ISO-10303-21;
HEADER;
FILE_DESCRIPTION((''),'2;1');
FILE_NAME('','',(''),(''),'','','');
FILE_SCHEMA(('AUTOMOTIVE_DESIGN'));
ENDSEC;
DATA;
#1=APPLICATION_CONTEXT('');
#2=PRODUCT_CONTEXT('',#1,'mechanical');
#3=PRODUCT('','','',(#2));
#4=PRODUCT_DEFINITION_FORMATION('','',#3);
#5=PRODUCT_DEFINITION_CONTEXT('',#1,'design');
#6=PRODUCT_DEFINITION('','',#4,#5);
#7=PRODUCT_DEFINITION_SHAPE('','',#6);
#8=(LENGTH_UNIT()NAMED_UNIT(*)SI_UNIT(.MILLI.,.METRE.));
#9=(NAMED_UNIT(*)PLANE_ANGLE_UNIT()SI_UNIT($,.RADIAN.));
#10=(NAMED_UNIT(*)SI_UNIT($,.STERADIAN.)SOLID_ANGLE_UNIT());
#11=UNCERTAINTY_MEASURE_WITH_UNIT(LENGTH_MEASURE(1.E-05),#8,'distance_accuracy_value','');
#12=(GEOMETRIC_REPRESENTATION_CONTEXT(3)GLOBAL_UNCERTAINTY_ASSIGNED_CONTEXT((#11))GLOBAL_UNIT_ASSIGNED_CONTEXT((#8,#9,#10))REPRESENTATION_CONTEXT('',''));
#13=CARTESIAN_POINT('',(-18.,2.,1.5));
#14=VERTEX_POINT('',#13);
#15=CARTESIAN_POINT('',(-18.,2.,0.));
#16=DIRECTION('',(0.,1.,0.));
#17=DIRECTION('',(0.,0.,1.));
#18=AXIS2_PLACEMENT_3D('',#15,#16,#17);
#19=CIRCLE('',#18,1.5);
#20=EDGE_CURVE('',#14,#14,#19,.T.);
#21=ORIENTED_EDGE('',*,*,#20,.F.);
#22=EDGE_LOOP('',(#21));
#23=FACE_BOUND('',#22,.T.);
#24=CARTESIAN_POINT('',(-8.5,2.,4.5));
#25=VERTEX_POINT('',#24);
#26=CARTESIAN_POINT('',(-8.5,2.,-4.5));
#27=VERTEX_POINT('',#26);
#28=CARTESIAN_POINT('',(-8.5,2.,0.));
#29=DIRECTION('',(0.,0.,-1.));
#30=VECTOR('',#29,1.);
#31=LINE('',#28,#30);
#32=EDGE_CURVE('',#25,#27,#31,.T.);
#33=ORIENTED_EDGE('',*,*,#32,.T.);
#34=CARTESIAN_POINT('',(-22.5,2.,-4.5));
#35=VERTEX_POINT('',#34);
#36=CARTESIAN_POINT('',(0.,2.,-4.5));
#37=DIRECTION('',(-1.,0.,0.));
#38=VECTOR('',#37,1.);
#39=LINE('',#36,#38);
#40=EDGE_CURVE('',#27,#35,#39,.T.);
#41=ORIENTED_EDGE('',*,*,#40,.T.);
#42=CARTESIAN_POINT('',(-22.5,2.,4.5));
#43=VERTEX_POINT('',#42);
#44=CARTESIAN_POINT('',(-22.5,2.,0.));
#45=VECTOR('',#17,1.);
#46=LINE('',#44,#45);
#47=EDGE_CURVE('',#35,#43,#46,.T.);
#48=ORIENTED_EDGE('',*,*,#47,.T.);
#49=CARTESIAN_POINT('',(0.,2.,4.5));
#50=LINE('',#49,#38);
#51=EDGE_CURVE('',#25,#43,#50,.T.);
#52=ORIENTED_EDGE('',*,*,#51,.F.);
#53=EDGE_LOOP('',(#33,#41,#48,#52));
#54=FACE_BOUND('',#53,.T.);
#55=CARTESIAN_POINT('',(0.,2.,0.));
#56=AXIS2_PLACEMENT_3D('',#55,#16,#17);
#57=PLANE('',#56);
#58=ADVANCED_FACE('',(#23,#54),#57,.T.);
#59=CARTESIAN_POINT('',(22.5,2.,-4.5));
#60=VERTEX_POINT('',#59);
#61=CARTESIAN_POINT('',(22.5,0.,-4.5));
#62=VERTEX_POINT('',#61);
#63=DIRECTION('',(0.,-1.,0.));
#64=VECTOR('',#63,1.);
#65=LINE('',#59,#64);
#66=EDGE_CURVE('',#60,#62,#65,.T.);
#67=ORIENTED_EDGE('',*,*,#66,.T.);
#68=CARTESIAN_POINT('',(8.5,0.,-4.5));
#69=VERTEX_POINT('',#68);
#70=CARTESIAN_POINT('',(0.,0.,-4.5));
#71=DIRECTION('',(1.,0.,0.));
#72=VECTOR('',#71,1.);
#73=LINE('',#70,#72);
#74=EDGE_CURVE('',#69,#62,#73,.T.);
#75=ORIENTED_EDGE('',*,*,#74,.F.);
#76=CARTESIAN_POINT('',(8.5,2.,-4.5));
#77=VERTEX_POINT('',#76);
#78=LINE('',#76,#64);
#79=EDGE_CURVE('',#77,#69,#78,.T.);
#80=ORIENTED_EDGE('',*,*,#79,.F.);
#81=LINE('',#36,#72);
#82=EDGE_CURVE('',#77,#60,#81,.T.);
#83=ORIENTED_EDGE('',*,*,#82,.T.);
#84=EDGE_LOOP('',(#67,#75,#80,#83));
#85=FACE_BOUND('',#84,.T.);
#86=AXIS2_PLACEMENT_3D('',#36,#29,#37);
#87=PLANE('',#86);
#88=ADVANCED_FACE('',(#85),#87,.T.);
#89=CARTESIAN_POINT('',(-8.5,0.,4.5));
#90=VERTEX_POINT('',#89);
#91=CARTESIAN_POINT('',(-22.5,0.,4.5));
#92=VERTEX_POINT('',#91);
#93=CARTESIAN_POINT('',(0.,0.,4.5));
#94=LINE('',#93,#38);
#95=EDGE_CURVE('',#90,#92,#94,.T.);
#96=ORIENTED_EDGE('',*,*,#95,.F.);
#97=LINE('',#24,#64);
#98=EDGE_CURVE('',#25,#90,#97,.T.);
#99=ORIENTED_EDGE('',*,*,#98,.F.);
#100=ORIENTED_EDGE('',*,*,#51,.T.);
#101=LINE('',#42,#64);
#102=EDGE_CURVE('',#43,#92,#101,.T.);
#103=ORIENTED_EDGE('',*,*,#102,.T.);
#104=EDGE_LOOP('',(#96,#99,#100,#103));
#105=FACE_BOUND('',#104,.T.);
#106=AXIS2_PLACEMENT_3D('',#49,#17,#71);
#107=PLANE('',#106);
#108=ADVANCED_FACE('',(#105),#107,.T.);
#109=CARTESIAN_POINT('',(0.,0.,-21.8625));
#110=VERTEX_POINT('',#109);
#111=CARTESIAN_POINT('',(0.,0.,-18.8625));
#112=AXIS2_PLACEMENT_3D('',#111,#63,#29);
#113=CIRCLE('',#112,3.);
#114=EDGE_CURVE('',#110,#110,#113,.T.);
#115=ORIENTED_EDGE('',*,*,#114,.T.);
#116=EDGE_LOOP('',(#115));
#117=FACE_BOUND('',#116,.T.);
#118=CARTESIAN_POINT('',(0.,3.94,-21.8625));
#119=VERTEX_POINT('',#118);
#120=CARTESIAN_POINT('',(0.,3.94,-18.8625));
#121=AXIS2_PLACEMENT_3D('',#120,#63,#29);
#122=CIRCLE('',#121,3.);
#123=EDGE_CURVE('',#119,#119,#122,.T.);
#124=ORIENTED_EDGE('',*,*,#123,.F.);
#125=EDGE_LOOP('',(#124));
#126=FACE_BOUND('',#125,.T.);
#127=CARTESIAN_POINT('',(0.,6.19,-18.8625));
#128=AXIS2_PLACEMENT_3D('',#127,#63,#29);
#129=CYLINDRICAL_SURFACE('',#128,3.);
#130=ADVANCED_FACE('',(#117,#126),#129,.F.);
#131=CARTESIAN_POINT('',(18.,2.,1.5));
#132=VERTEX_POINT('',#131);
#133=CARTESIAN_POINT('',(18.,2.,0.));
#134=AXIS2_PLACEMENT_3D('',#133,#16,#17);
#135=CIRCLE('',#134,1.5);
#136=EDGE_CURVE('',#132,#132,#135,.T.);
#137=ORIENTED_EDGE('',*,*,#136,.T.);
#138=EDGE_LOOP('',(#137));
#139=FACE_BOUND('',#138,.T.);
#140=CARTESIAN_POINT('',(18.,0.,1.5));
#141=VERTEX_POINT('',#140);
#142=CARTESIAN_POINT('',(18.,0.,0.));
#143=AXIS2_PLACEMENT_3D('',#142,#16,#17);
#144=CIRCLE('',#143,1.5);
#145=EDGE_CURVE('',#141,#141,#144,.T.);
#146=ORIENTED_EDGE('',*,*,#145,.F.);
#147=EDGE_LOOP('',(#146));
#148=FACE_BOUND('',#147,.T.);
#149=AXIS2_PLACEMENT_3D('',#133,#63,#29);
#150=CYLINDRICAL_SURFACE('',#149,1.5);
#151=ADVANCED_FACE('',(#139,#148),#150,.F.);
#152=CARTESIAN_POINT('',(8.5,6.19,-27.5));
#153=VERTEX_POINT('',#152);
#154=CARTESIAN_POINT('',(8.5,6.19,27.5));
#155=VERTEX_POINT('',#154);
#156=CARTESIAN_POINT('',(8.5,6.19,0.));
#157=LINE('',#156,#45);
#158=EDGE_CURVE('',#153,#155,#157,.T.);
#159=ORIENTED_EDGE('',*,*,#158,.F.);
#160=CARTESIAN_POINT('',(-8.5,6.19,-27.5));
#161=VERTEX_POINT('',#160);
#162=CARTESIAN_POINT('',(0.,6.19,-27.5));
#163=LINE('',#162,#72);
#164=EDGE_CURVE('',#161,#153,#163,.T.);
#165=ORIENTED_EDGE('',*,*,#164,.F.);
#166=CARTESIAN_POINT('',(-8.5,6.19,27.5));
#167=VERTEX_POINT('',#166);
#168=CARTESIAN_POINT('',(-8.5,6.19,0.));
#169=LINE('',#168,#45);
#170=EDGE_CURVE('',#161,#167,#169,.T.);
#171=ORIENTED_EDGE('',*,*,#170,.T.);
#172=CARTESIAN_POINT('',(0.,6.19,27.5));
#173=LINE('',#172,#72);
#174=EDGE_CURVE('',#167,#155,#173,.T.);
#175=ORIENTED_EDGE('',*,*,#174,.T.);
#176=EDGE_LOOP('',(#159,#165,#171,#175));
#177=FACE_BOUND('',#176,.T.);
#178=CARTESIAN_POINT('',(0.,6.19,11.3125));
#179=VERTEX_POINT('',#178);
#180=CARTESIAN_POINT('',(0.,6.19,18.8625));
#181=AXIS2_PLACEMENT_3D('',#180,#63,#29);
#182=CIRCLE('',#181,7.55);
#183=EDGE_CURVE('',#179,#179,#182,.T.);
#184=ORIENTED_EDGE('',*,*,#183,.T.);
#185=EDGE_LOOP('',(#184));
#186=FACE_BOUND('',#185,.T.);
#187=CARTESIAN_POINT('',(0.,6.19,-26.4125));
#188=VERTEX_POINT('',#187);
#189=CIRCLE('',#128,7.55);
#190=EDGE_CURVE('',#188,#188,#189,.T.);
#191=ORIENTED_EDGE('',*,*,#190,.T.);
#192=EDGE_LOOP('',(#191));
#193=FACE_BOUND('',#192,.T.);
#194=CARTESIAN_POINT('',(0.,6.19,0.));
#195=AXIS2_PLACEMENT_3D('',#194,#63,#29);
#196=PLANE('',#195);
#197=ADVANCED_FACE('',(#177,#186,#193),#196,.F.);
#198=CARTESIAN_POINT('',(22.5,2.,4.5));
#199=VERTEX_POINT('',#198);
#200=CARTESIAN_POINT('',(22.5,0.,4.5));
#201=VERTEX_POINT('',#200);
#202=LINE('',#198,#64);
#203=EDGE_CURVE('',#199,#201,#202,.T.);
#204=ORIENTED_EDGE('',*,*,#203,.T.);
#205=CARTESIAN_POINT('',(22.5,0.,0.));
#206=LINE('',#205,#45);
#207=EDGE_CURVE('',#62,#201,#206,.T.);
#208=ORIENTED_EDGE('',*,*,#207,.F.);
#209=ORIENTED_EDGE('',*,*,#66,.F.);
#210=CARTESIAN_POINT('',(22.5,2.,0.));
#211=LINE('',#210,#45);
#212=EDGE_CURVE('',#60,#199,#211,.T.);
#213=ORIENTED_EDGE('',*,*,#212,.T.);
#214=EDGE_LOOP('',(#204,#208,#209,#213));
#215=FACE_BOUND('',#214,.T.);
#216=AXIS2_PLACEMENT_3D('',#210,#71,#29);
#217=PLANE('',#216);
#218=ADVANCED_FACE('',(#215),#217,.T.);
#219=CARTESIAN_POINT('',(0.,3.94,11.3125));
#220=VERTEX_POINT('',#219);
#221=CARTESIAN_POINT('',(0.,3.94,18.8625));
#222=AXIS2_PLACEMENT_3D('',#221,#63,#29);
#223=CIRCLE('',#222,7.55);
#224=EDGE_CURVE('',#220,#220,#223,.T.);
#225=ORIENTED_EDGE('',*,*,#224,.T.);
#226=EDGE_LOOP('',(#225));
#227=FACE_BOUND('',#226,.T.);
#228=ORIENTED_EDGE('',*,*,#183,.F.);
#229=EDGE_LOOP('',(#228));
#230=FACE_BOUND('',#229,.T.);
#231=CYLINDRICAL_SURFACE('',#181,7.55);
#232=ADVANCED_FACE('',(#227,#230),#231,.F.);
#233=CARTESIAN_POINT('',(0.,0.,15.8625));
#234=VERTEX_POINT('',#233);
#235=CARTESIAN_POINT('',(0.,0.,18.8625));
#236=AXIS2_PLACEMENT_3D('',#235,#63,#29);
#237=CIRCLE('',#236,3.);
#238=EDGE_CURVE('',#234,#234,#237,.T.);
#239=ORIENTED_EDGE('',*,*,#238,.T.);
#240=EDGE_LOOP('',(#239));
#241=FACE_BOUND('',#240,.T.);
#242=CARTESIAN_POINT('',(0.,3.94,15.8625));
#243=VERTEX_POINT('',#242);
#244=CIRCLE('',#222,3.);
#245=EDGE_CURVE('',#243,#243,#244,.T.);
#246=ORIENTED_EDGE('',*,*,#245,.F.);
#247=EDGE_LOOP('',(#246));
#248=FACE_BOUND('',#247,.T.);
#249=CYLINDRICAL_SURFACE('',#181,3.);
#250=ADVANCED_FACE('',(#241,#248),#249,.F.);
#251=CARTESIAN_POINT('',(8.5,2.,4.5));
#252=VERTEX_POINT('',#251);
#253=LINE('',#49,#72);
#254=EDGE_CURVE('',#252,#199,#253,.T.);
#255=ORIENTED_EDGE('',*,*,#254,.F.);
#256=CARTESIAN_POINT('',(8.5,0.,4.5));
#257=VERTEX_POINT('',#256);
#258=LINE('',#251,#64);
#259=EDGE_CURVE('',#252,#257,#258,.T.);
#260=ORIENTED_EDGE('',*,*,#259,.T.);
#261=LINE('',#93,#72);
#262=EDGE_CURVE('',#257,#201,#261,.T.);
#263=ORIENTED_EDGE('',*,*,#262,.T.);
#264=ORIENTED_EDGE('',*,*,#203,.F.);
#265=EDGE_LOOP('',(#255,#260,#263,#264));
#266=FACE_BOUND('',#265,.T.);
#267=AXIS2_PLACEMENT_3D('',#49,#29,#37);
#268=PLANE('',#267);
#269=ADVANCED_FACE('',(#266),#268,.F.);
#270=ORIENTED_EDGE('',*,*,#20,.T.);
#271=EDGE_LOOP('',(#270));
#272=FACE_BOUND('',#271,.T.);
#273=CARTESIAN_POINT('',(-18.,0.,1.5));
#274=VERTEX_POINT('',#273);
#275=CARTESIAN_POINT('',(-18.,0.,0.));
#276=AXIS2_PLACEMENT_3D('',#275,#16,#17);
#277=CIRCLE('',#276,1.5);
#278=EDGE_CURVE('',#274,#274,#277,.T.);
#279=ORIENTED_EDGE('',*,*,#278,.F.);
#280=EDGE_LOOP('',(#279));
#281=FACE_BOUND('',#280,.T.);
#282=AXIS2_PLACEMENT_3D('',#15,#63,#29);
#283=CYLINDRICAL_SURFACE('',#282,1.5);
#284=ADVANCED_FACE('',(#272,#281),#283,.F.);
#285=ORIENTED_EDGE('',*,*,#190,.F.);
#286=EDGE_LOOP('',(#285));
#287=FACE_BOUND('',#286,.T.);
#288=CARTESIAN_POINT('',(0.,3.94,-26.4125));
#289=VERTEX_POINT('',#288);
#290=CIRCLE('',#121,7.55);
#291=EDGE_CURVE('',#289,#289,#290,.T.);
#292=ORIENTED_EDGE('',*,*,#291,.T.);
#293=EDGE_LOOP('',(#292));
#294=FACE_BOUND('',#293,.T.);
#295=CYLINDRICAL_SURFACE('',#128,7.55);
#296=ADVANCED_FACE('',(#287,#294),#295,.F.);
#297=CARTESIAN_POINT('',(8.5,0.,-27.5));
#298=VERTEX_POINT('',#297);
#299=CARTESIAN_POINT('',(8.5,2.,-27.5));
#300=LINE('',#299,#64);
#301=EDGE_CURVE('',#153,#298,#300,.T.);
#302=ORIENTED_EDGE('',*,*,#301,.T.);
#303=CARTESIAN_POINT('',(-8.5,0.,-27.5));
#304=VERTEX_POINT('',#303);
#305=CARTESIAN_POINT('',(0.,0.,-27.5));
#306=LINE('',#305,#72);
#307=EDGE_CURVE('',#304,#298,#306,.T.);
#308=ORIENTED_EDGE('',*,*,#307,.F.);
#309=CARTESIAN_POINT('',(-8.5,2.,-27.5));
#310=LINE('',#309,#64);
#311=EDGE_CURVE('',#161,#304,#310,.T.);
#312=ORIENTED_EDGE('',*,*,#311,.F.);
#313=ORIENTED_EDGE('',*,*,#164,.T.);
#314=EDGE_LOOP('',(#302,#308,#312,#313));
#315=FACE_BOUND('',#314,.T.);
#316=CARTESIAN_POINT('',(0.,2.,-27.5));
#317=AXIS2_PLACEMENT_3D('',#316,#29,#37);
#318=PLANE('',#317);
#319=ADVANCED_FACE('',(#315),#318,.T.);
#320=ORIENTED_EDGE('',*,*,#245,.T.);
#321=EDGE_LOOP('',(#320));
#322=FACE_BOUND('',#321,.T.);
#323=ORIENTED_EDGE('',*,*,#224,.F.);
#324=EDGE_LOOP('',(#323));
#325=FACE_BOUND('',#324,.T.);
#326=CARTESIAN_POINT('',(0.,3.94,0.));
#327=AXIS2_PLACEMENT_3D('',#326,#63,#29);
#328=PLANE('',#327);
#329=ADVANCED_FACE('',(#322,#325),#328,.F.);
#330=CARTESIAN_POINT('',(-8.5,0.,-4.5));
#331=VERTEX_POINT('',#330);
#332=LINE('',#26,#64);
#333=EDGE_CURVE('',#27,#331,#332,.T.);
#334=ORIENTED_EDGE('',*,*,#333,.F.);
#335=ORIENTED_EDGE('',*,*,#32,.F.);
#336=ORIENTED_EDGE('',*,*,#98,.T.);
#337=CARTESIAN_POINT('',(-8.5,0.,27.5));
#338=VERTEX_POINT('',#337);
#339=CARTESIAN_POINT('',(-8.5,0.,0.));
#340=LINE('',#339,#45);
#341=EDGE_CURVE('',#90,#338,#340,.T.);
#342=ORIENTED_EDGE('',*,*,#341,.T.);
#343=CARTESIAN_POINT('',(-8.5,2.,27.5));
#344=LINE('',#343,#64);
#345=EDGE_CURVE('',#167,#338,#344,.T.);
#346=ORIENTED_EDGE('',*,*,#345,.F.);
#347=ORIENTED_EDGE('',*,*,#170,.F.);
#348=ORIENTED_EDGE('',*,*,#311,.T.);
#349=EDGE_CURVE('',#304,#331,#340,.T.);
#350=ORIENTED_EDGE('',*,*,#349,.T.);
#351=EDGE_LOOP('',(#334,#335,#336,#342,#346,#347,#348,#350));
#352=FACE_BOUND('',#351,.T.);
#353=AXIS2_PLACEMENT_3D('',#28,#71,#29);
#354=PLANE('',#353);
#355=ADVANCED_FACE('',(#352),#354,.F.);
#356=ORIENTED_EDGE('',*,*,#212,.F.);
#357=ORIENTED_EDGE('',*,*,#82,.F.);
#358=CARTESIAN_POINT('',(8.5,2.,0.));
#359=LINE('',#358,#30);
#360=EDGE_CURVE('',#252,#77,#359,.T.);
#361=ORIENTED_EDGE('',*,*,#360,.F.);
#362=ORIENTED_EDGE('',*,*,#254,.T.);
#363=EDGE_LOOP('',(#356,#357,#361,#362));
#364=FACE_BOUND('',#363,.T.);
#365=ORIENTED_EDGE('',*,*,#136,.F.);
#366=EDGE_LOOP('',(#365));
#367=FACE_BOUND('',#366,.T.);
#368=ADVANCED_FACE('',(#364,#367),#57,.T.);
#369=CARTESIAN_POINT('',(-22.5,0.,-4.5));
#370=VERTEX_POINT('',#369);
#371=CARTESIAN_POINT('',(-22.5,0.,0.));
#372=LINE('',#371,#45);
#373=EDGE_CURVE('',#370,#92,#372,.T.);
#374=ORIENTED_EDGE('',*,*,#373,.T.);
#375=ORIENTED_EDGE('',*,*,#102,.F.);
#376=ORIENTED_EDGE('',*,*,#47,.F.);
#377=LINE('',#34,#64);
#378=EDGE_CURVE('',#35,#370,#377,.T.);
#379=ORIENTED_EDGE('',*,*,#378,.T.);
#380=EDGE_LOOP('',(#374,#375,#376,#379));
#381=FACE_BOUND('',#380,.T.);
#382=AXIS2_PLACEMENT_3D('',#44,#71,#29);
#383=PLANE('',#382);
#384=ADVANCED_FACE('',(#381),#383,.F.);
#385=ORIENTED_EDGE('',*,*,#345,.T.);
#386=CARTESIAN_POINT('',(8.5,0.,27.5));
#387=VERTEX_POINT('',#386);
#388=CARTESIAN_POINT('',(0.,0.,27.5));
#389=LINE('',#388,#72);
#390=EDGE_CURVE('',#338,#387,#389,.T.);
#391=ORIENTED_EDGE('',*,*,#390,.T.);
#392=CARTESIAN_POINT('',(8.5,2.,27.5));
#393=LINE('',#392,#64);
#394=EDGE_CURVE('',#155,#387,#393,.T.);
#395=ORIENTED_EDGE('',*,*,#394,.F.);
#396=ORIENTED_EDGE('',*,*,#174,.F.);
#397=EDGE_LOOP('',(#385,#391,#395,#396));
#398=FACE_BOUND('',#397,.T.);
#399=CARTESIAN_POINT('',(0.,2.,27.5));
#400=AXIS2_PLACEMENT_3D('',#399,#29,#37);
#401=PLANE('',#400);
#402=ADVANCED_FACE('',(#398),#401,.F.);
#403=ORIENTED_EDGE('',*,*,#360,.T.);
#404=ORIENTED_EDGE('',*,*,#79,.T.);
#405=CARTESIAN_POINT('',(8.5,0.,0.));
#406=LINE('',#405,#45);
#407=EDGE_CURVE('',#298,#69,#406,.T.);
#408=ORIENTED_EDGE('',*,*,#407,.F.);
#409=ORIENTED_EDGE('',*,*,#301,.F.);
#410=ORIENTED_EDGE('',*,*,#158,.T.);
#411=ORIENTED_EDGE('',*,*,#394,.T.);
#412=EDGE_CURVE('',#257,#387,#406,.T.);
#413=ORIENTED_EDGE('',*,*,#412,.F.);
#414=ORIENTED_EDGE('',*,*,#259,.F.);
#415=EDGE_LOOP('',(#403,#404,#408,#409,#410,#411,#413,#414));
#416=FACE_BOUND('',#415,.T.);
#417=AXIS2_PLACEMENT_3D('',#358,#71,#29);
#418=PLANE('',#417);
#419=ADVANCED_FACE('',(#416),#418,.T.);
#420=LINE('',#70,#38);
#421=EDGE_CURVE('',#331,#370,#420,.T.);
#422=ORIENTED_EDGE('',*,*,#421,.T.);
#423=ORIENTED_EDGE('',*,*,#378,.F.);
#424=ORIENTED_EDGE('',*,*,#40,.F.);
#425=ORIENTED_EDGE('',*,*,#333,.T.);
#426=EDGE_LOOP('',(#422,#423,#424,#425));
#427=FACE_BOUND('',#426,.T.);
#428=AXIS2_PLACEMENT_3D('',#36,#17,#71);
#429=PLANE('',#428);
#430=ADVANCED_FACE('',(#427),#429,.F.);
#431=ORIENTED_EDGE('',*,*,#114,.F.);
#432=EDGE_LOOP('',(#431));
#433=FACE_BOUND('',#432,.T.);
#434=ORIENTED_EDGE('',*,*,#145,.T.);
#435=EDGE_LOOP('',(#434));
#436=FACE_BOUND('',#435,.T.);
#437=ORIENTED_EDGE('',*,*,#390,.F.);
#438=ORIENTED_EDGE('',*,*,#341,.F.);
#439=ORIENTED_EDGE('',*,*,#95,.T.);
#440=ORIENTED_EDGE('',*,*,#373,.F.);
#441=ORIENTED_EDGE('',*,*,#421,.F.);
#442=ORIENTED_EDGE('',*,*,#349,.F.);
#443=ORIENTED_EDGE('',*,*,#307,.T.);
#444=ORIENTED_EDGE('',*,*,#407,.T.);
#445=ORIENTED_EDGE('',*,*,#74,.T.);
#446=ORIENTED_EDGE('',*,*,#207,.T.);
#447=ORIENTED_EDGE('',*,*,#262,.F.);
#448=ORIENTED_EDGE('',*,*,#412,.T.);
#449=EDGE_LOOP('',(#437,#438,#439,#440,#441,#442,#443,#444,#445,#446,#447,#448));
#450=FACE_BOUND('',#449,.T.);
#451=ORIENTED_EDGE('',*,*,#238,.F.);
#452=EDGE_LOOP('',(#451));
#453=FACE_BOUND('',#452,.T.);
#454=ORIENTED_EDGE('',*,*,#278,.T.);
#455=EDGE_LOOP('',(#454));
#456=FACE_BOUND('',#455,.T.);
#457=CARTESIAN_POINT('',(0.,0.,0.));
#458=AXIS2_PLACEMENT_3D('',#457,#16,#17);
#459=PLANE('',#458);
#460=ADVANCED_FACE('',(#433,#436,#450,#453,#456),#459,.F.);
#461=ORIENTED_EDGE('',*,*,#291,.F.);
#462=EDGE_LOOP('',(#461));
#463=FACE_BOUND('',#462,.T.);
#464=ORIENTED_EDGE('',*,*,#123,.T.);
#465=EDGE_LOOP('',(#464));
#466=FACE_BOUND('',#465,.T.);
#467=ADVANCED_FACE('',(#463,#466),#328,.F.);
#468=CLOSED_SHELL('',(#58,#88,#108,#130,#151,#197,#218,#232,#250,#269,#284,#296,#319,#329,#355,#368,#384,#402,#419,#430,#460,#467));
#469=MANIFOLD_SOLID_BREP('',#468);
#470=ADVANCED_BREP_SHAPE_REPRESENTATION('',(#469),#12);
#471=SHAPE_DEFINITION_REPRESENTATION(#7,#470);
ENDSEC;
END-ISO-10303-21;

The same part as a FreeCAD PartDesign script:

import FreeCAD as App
import Part
import Sketcher
from FreeCAD import Vector


def add_polygon(sketch, points):
    """Adds a closed chain of lines whose ends are joined by coincident constraints."""
    first, n = sketch.GeometryCount, len(points)
    for a, b in zip(points, points[1:] + points[:1]):
        sketch.addGeometry(Part.LineSegment(App.Vector(*a, 0), App.Vector(*b, 0)), False)
    for i in range(n):
        sketch.addConstraint(Sketcher.Constraint("Coincident", first + i, 2, first + (i + 1) % n, 1))

doc = App.newDocument("Part")
body = doc.addObject("PartDesign::Body", "Body")

sketch1 = body.newObject("Sketcher::SketchObject", "Sketch")
sketch1.AttachmentSupport = (doc.getObject("XZ_Plane"), [""])
sketch1.MapMode = "FlatFace"
add_polygon(sketch1, [(-8.5, 4.5), (-8.5, 27.5), (8.5, 27.5), (8.5, 4.5), (22.5, 4.5), (22.5, -4.5), (8.5, -4.5), (8.5, -27.5), (-8.5, -27.5), (-8.5, -4.5), (-22.5, -4.5), (-22.5, 4.5)])
sketch1.addGeometry(Part.Circle(Vector(-18, 0, 0), Vector(0, 0, 1), 1.5), False)
sketch1.addGeometry(Part.Circle(Vector(18, 0, 0), Vector(0, 0, 1), 1.5), False)
sketch1.addConstraint([
    Sketcher.Constraint("Vertical", 0),
    Sketcher.Constraint("Horizontal", 1),
    Sketcher.Constraint("Vertical", 2),
    Sketcher.Constraint("Horizontal", 3),
    Sketcher.Constraint("Vertical", 4),
    Sketcher.Constraint("Horizontal", 5),
    Sketcher.Constraint("Vertical", 6),
    Sketcher.Constraint("Horizontal", 7),
    Sketcher.Constraint("Vertical", 8),
    Sketcher.Constraint("Horizontal", 9),
    Sketcher.Constraint("Vertical", 10),
    Sketcher.Constraint("Horizontal", 11),
    Sketcher.Constraint("Equal", 12, 13),
    Sketcher.Constraint("Symmetric", 12, 3, 13, 3, -1, 1),
    Sketcher.Constraint("Symmetric", 0, 2, 6, 2, -1, 1),
    Sketcher.Constraint("Symmetric", 2, 2, 8, 2, -1, 1),
    Sketcher.Constraint("Symmetric", 4, 2, 10, 2, -1, 1),
    Sketcher.Constraint("Symmetric", 5, 2, 8, 2, -2),
    Sketcher.Constraint("PointOnObject", 12, 3, -1),
    Sketcher.Constraint("Diameter", 12, 3.0),
    Sketcher.Constraint("DistanceX", 1, 1, 1, 2, 17.0),
    Sketcher.Constraint("DistanceX", 3, 1, 3, 2, 14.0),
    Sketcher.Constraint("DistanceY", 0, 1, 0, 2, 23.0),
    Sketcher.Constraint("DistanceY", 4, 2, 4, 1, 9.0),
    Sketcher.Constraint("DistanceX", 12, 3, -1, 1, 18.0),
])
pad1 = body.newObject("PartDesign::Pad", "Pad")
pad1.Profile = sketch1
pad1.Length = 2
pad1.Reversed = True

sketch2 = body.newObject("Sketcher::SketchObject", "Sketch001")
sketch2.AttachmentSupport = (doc.getObject("XZ_Plane"), [""])
sketch2.MapMode = "FlatFace"
sketch2.AttachmentOffset = App.Placement(Vector(0, 0, -2), App.Rotation())
add_polygon(sketch2, [(-8, -28), (-8, 28), (8, 28), (8, -28)])
sketch2.addConstraint([
    Sketcher.Constraint("Vertical", 0),
    Sketcher.Constraint("Horizontal", 1),
    Sketcher.Constraint("Vertical", 2),
    Sketcher.Constraint("Horizontal", 3),
    Sketcher.Constraint("Symmetric", 0, 2, 2, 2, -1, 1),
    Sketcher.Constraint("DistanceX", 1, 1, 1, 2, 17.0),
    Sketcher.Constraint("DistanceY", 0, 1, 0, 2, 55.0),
])
pad2 = body.newObject("PartDesign::Pad", "Pad001")
pad2.Profile = sketch2
pad2.Length = 1.94
pad2.Reversed = True

sketch3 = body.newObject("Sketcher::SketchObject", "Sketch002")
sketch3.AttachmentSupport = (doc.getObject("XZ_Plane"), [""])
sketch3.MapMode = "FlatFace"
sketch3.AttachmentOffset = App.Placement(Vector(0, 0, -3.94), App.Rotation())
add_polygon(sketch3, [(-8, -28), (-8, 28), (8, 28), (8, -28)])
sketch3.addGeometry(Part.Circle(Vector(0, 19, 0), Vector(0, 0, 1), 8), False)
sketch3.addGeometry(Part.Circle(Vector(0, -19, 0), Vector(0, 0, 1), 8), False)
sketch3.addConstraint([
    Sketcher.Constraint("Vertical", 0),
    Sketcher.Constraint("Horizontal", 1),
    Sketcher.Constraint("Vertical", 2),
    Sketcher.Constraint("Horizontal", 3),
    Sketcher.Constraint("Equal", 4, 5),
    Sketcher.Constraint("Symmetric", 4, 3, 5, 3, -1, 1),
    Sketcher.Constraint("Symmetric", 0, 2, 2, 2, -1, 1),
    Sketcher.Constraint("PointOnObject", 4, 3, -2),
    Sketcher.Constraint("Diameter", 4, 15.1),
    Sketcher.Constraint("DistanceX", 1, 1, 1, 2, 17.0),
    Sketcher.Constraint("DistanceY", 0, 1, 0, 2, 55.0),
    Sketcher.Constraint("DistanceY", 5, 3, 4, 3, 37.725),
])
pad3 = body.newObject("PartDesign::Pad", "Pad002")
pad3.Profile = sketch3
pad3.Length = 2.25
pad3.Reversed = True

sketch4 = body.newObject("Sketcher::SketchObject", "Sketch003")
sketch4.AttachmentSupport = (doc.getObject("XZ_Plane"), [""])
sketch4.MapMode = "FlatFace"
sketch4.addGeometry([
    Part.Circle(Vector(0, -18.9, 0), Vector(0, 0, 1), 3),
    Part.Circle(Vector(0, 18.9, 0), Vector(0, 0, 1), 3),
], False)
sketch4.addConstraint([
    Sketcher.Constraint("Equal", 0, 1),
    Sketcher.Constraint("Symmetric", 0, 3, 1, 3, -1, 1),
    Sketcher.Constraint("PointOnObject", 0, 3, -2),
    Sketcher.Constraint("Diameter", 0, 6.0),
    Sketcher.Constraint("DistanceY", 0, 3, 1, 3, 37.725),
])
pocket1 = body.newObject("PartDesign::Pocket", "Pocket")
pocket1.Profile = sketch4
pocket1.Type = "ThroughAll"

doc.recompute()
